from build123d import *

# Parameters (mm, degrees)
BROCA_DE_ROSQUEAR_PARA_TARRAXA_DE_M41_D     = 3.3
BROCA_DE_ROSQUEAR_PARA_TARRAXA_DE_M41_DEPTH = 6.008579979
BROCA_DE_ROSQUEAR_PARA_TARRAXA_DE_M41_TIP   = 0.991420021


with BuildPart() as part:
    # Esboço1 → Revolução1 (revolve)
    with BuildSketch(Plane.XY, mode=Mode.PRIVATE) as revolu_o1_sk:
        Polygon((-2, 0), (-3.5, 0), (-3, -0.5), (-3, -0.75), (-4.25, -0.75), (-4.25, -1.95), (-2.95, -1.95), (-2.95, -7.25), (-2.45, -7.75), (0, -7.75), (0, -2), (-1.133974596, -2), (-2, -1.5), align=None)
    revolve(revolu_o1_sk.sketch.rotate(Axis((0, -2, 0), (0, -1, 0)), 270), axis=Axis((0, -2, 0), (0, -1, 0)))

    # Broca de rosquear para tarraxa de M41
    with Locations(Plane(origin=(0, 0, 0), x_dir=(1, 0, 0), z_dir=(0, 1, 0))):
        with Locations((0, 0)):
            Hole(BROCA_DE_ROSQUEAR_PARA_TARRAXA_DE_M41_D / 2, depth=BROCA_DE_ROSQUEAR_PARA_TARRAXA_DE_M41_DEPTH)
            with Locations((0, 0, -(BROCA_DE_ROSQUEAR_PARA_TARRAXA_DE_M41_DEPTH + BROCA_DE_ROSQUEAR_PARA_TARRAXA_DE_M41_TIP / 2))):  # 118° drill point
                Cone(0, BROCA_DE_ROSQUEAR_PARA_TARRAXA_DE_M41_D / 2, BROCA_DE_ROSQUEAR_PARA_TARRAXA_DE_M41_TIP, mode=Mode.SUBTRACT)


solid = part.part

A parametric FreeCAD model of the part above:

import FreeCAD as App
import Part
import Sketcher

V = App.Vector
Q = App.Units.Quantity


def add_polygon(sketch, points):
    """Adds a closed chain of lines whose ends are joined by coincident constraints."""
    first, n = sketch.GeometryCount, len(points)
    for a, b in zip(points, points[1:] + points[:1]):
        sketch.addGeometry(Part.LineSegment(App.Vector(*a, 0), App.Vector(*b, 0)), False)
    for i in range(n):
        sketch.addConstraint(Sketcher.Constraint("Coincident", first + i, 2, first + (i + 1) % n, 1))

doc = App.newDocument("Part")
body = doc.addObject("PartDesign::Body", "Body")

# Sketch on XY plane
sketch1 = body.newObject("Sketcher::SketchObject", "Sketch")
sketch1.AttachmentSupport = (doc.getObject("XY_Plane"), [""])
sketch1.MapMode = "FlatFace"
add_polygon(sketch1, [(-2, 0), (-3.5, 0), (-3, -0.5), (-3, -0.75), (-4.25, -0.75), (-4.25, -1.95), (-2.95, -1.95), (-2.95, -7.25), (-2.45, -7.75), (0, -7.75), (0, -2), (-1.133975, -2), (-2, -1.5)])  # lines 0-12
sketch1.addConstraint([
    Sketcher.Constraint("Horizontal", 0),
    Sketcher.Constraint("Vertical", 2),
    Sketcher.Constraint("Horizontal", 3),
    Sketcher.Constraint("Vertical", 4),
    Sketcher.Constraint("Horizontal", 5),
    Sketcher.Constraint("Vertical", 6),
    Sketcher.Constraint("Horizontal", 8),
    Sketcher.Constraint("Vertical", 9),
    Sketcher.Constraint("Horizontal", 10),
    Sketcher.Constraint("Vertical", 12),
    Sketcher.Constraint("PointOnObject", 0, 2, -1),
    Sketcher.Constraint("PointOnObject", 8, 2, -2),
    Sketcher.Constraint("Parallel", 1, 7),
    Sketcher.Constraint("Equal", 0, 12),
    Sketcher.Constraint("Equal", 1, 7),
    Sketcher.Constraint("Angle", 1, Q("-45 deg")),
    Sketcher.Constraint("Angle", 11, Q("150 deg")),
    Sketcher.Constraint("Distance", 11, 1.0),
    Sketcher.Constraint("DistanceX", 0, 2, 0, 1, 1.5),
    Sketcher.Constraint("DistanceX", 5, 1, 5, 2, 1.3),
    Sketcher.Constraint("DistanceY", 4, 2, 4, 1, 1.2),
    Sketcher.Constraint("DistanceY", 6, 2, 6, 1, 5.3),
    Sketcher.Constraint("DistanceX", 1, 2, -1, 1, 3.0),
    Sketcher.Constraint("DistanceX", 11, 2, -1, 1, 2.0),
    Sketcher.Constraint("DistanceX", 3, 2, 3, 1, 1.25),
    Sketcher.Constraint("DistanceY", 2, 2, 2, 1, 0.25),
])
revolution = body.newObject("PartDesign::Revolution", "Revolution")
revolution.Profile = sketch1
revolution.ReferenceAxis = (sketch1, ["V_Axis"])
revolution.Angle = 360

# Sketch on XZ plane
sketch2 = body.newObject("Sketcher::SketchObject", "Sketch001")
sketch2.AttachmentSupport = (doc.getObject("XZ_Plane"), [""])
sketch2.MapMode = "FlatFace"
sketch2.addGeometry(Part.Circle(V(0, 0, 0), V(0, 0, 1), 1.65), False)
sketch2.addConstraint([
    Sketcher.Constraint("Coincident", 0, 3, -1, 1),
    Sketcher.Constraint("Diameter", 0, 3.3),
])
doc.recompute()
hole = body.newObject("PartDesign::Hole", "Hole")
hole.Profile = sketch2
hole.ThreadType = "None"
hole.Diameter = 3.3
hole.DepthType = "Dimension"
hole.Depth = 6.00858
hole.DrillPoint = "Angled"
hole.DrillPointAngle = 118
hole.Reversed = True

doc.recompute()
